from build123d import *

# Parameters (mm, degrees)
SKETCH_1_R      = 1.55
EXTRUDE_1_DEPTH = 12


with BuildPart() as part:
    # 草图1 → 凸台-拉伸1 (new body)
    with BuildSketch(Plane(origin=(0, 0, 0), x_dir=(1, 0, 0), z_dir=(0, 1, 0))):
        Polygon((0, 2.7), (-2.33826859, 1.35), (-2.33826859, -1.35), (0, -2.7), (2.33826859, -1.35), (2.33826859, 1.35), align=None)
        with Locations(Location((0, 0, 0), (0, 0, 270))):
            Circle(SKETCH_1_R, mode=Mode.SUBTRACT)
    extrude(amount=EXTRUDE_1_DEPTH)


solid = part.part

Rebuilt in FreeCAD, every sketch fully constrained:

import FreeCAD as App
import Part
import Sketcher
from FreeCAD import Vector
Q = App.Units.Quantity

doc = App.newDocument("Part")
body = doc.addObject("PartDesign::Body", "Body")

# Sketch on XZ plane
sketch1 = doc.addObject("Sketcher::SketchObject", "Sketch")
body.addObject(sketch1)
sketch1.AttachmentSupport = (doc.XZ_Plane, [""])
sketch1.MapMode = "FlatFace"
sketch1.addGeometry([
    Part.LineSegment(Vector(0, -2.7, 0), Vector(-2.3, -1.4, 0)),  # 0
    Part.LineSegment(Vector(-2.3, -1.4, 0), Vector(-2.3, 1.4, 0)),  # 1
    Part.LineSegment(Vector(-2.3, 1.4, 0), Vector(0, 2.7, 0)),  # 2
    Part.LineSegment(Vector(0, 2.7, 0), Vector(2.3, 1.4, 0)),  # 3
    Part.LineSegment(Vector(2.3, 1.4, 0), Vector(2.3, -1.4, 0)),  # 4
    Part.LineSegment(Vector(2.3, -1.4, 0), Vector(0, -2.7, 0)),  # 5
    Part.Circle(Vector(0, 0, 0), Vector(0, 0, 1), 1.6),  # 6
], False)
sketch1.addConstraint([
    Sketcher.Constraint("Coincident", 0, 2, 1, 1),
    Sketcher.Constraint("Coincident", 1, 2, 2, 1),
    Sketcher.Constraint("Coincident", 2, 2, 3, 1),
    Sketcher.Constraint("Coincident", 3, 2, 4, 1),
    Sketcher.Constraint("Coincident", 4, 2, 5, 1),
    Sketcher.Constraint("Coincident", 5, 2, 0, 1),
    Sketcher.Constraint("Vertical", 1),
    Sketcher.Constraint("Vertical", 4),
    Sketcher.Constraint("Coincident", 6, 3, -1, 1),
    Sketcher.Constraint("Symmetric", 0, 2, 3, 2, -1, 1),
    Sketcher.Constraint("Symmetric", 2, 2, 5, 2, -1, 1),
    Sketcher.Constraint("PointOnObject", 2, 2, -2),
    Sketcher.Constraint("Parallel", 2, 5),
    Sketcher.Constraint("Horizontal", 1, 2, 3, 2),
    Sketcher.Constraint("Diameter", 6, Q("3.1 mm")),
    Sketcher.Constraint("Angle", 0, Q("150 deg")),
    Sketcher.Constraint("DistanceY", 1, 1, 1, 2, Q("2.7 mm")),
    Sketcher.Constraint("Distance", 0, Q("2.7 mm")),
])
pad1 = doc.addObject("PartDesign::Pad", "Pad")
body.addObject(pad1)
pad1.Profile = sketch1
pad1.Length = 12
pad1.Reversed = True

doc.recompute()
